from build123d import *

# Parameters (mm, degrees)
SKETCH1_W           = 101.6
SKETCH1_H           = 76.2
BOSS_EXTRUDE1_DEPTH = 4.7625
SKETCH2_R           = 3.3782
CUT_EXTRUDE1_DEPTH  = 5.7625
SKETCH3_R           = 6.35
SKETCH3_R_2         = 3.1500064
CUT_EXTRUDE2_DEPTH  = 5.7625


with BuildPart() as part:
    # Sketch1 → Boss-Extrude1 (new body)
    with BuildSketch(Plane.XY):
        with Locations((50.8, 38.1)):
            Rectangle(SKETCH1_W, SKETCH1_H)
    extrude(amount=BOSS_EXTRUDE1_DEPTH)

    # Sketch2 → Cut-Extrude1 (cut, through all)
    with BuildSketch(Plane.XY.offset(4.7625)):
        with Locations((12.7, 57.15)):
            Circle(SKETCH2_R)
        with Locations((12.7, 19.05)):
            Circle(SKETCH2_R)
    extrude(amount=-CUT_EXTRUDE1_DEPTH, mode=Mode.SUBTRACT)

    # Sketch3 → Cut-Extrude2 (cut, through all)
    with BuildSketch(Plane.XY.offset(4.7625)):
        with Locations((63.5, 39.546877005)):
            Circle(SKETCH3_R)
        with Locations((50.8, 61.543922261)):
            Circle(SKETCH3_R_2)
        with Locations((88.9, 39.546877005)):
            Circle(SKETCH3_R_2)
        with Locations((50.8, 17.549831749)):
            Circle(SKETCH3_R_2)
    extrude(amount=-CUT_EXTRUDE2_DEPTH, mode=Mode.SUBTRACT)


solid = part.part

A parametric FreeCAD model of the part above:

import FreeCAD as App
import Part
import Sketcher
from FreeCAD import Vector
Q = App.Units.Quantity

doc = App.newDocument("Part")
body = doc.addObject("PartDesign::Body", "Body")

# Sketch on XY plane
sketch1 = doc.addObject("Sketcher::SketchObject", "Sketch")
body.addObject(sketch1)
sketch1.AttachmentSupport = (doc.XY_Plane, [""])
sketch1.MapMode = "FlatFace"
sketch1.addGeometry(Part.LineSegment(Vector(0, 76, 0), Vector(0, 0, 0)), False)
sketch1.addGeometry(Part.LineSegment(Vector(0, 0, 0), Vector(102, 0, 0)), False)
sketch1.addGeometry(Part.LineSegment(Vector(102, 0, 0), Vector(102, 76, 0)), False)
sketch1.addGeometry(Part.LineSegment(Vector(102, 76, 0), Vector(0, 76, 0)), False)
sketch1.addConstraint(Sketcher.Constraint("Coincident", 0, 2, 1, 1))
sketch1.addConstraint(Sketcher.Constraint("Coincident", 1, 2, 2, 1))
sketch1.addConstraint(Sketcher.Constraint("Coincident", 2, 2, 3, 1))
sketch1.addConstraint(Sketcher.Constraint("Coincident", 3, 2, 0, 1))
sketch1.addConstraint(Sketcher.Constraint("Vertical", 0))
sketch1.addConstraint(Sketcher.Constraint("Horizontal", 1))
sketch1.addConstraint(Sketcher.Constraint("Vertical", 2))
sketch1.addConstraint(Sketcher.Constraint("Horizontal", 3))
sketch1.addConstraint(Sketcher.Constraint("Coincident", 0, 2, -1, 1))
sketch1.addConstraint(Sketcher.Constraint("DistanceX", 1, 1, 1, 2, Q("4 in")))
sketch1.addConstraint(Sketcher.Constraint("DistanceY", 0, 2, 0, 1, Q("3 in")))
pad1 = doc.addObject("PartDesign::Pad", "Pad")
body.addObject(pad1)
pad1.Profile = sketch1
pad1.Length = Q("0.1875 in")

# Sketch on XY plane
sketch2 = doc.addObject("Sketcher::SketchObject", "Sketch001")
body.addObject(sketch2)
sketch2.AttachmentSupport = (doc.XY_Plane, [""])
sketch2.MapMode = "FlatFace"
sketch2.AttachmentOffset = App.Placement(Vector(0, 0, 0.1875 * 25.4), App.Rotation())
sketch2.addGeometry(Part.Circle(Vector(12.7, 57.1, 0), Vector(0, 0, 1), 3.4), False)
sketch2.addGeometry(Part.Circle(Vector(12.7, 19.1, 0), Vector(0, 0, 1), 3.4), False)
sketch2.addConstraint(Sketcher.Constraint("Equal", 0, 1))
sketch2.addConstraint(Sketcher.Constraint("Vertical", 0, 3, 1, 3))
sketch2.addConstraint(Sketcher.Constraint("Diameter", 0, Q("0.266 in")))
sketch2.addConstraint(Sketcher.Constraint("DistanceX", -1, 1, 0, 3, Q("0.5 in")))
sketch2.addConstraint(Sketcher.Constraint("DistanceY", 1, 3, 0, 3, Q("1.5 in")))
sketch2.addConstraint(Sketcher.Constraint("DistanceY", -1, 1, 0, 3, Q("2.25 in")))
pocket1 = doc.addObject("PartDesign::Pocket", "Pocket")
body.addObject(pocket1)
pocket1.Profile = sketch2
pocket1.Type = "ThroughAll"

# Sketch on XY plane
sketch3 = doc.addObject("Sketcher::SketchObject", "Sketch002")
body.addObject(sketch3)
sketch3.AttachmentSupport = (doc.XY_Plane, [""])
sketch3.MapMode = "FlatFace"
sketch3.AttachmentOffset = App.Placement(Vector(0, 0, 0.1875 * 25.4), App.Rotation())
sketch3.addGeometry(Part.Circle(Vector(63.5, 39.5, 0), Vector(0, 0, 1), 6.3), False)
sketch3.addGeometry(Part.Circle(Vector(50.8, 61.5, 0), Vector(0, 0, 1), 3.2), False)
sketch3.addGeometry(Part.Circle(Vector(88.9, 39.5, 0), Vector(0, 0, 1), 3.2), False)
sketch3.addGeometry(Part.Circle(Vector(50.8, 17.5, 0), Vector(0, 0, 1), 3.2), False)
sketch3.addConstraint(Sketcher.Constraint("Equal", 1, 2))
sketch3.addConstraint(Sketcher.Constraint("Equal", 2, 3))
sketch3.addConstraint(Sketcher.Constraint("Horizontal", 0, 3, 2, 3))
sketch3.addConstraint(Sketcher.Constraint("Vertical", 1, 3, 3, 3))
sketch3.addConstraint(Sketcher.Constraint("Diameter", 0, Q("0.5 in")))
sketch3.addConstraint(Sketcher.Constraint("DistanceX", -1, 1, 1, 3, Q("2 in")))
sketch3.addConstraint(Sketcher.Constraint("DistanceX", 0, 3, 2, 3, Q("1 in")))
sketch3.addConstraint(Sketcher.Constraint("DistanceX", -1, 1, 0, 3, Q("2.5 in")))
sketch3.addConstraint(Sketcher.Constraint("Diameter", 1, Q("6.300013 mm")))
sketch3.addConstraint(Sketcher.Constraint("DistanceY", -1, 1, 3, 3, Q("17.549832 mm")))
sketch3.addConstraint(Sketcher.Constraint("DistanceY", 3, 3, 1, 3, Q("43.994091 mm")))
sketch3.addConstraint(Sketcher.Constraint("DistanceY", -1, 1, 0, 3, Q("39.546877 mm")))
pocket2 = doc.addObject("PartDesign::Pocket", "Pocket001")
body.addObject(pocket2)
pocket2.Profile = sketch3
pocket2.Type = "ThroughAll"

doc.recompute()
